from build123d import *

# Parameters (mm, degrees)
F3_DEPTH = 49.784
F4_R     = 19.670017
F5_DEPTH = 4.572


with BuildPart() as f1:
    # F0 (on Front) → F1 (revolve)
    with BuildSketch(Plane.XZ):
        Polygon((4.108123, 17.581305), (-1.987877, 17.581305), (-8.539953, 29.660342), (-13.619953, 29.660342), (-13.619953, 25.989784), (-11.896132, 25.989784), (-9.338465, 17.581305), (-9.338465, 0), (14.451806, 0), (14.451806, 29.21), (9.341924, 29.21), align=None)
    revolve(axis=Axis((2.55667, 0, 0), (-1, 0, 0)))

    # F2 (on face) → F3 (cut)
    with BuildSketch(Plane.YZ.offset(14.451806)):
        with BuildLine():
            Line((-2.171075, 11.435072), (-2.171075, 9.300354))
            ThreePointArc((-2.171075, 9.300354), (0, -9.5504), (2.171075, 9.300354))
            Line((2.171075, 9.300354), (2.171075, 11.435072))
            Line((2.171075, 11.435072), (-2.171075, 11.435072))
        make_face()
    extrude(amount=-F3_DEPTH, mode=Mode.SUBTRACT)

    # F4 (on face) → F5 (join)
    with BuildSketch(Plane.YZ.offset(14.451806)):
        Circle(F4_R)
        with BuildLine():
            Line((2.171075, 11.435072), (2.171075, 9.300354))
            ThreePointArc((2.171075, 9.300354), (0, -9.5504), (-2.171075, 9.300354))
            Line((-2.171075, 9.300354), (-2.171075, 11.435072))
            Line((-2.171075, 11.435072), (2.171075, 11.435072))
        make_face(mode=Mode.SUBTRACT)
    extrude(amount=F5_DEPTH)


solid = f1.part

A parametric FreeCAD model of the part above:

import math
import FreeCAD as App
import Part
import Sketcher
Q = App.Units.Quantity

doc = App.newDocument("Part")
body = doc.addObject("PartDesign::Body", "Body")

# Sketch on XZ plane
sketch1 = body.newObject("Sketcher::SketchObject", "Sketch")
sketch1.AttachmentSupport = (doc.getObject("XZ_Plane"), [""])
sketch1.MapMode = "FlatFace"
sketch1.addGeometry(Part.LineSegment(App.Vector(4.1, 17.6, 0), App.Vector(-2, 17.6, 0)), False)
sketch1.addGeometry(Part.LineSegment(App.Vector(-2, 17.6, 0), App.Vector(-8.5, 29.7, 0)), False)
sketch1.addGeometry(Part.LineSegment(App.Vector(-8.5, 29.7, 0), App.Vector(-13.6, 29.7, 0)), False)
sketch1.addGeometry(Part.LineSegment(App.Vector(-13.6, 29.7, 0), App.Vector(-13.6, 26, 0)), False)
sketch1.addGeometry(Part.LineSegment(App.Vector(-13.6, 26, 0), App.Vector(-11.9, 26, 0)), False)
sketch1.addGeometry(Part.LineSegment(App.Vector(-11.9, 26, 0), App.Vector(-9.3, 17.6, 0)), False)
sketch1.addGeometry(Part.LineSegment(App.Vector(-9.3, 17.6, 0), App.Vector(-9.3, 0, 0)), False)
sketch1.addGeometry(Part.LineSegment(App.Vector(-9.3, 0, 0), App.Vector(14.5, 0, 0)), False)
sketch1.addGeometry(Part.LineSegment(App.Vector(14.5, 0, 0), App.Vector(14.5, 29.2, 0)), False)
sketch1.addGeometry(Part.LineSegment(App.Vector(14.5, 29.2, 0), App.Vector(9.3, 29.2, 0)), False)
sketch1.addGeometry(Part.LineSegment(App.Vector(9.3, 29.2, 0), App.Vector(4.1, 17.6, 0)), False)
sketch1.addConstraint(Sketcher.Constraint("Coincident", 0, 2, 1, 1))
sketch1.addConstraint(Sketcher.Constraint("Coincident", 1, 2, 2, 1))
sketch1.addConstraint(Sketcher.Constraint("Coincident", 2, 2, 3, 1))
sketch1.addConstraint(Sketcher.Constraint("Coincident", 3, 2, 4, 1))
sketch1.addConstraint(Sketcher.Constraint("Coincident", 4, 2, 5, 1))
sketch1.addConstraint(Sketcher.Constraint("Coincident", 5, 2, 6, 1))
sketch1.addConstraint(Sketcher.Constraint("Coincident", 6, 2, 7, 1))
sketch1.addConstraint(Sketcher.Constraint("Coincident", 7, 2, 8, 1))
sketch1.addConstraint(Sketcher.Constraint("Coincident", 8, 2, 9, 1))
sketch1.addConstraint(Sketcher.Constraint("Coincident", 9, 2, 10, 1))
sketch1.addConstraint(Sketcher.Constraint("Coincident", 10, 2, 0, 1))
sketch1.addConstraint(Sketcher.Constraint("Horizontal", 0))
sketch1.addConstraint(Sketcher.Constraint("Horizontal", 2))
sketch1.addConstraint(Sketcher.Constraint("Vertical", 3))
sketch1.addConstraint(Sketcher.Constraint("Horizontal", 4))
sketch1.addConstraint(Sketcher.Constraint("Vertical", 6))
sketch1.addConstraint(Sketcher.Constraint("Horizontal", 7))
sketch1.addConstraint(Sketcher.Constraint("Vertical", 8))
sketch1.addConstraint(Sketcher.Constraint("Horizontal", 9))
sketch1.addConstraint(Sketcher.Constraint("PointOnObject", 6, 2, -1))
sketch1.addConstraint(Sketcher.Constraint("Horizontal", 0, 2, 5, 2))
sketch1.addConstraint(Sketcher.Constraint("DistanceX", 2, 2, 2, 1, Q("0.2 in")))
sketch1.addConstraint(Sketcher.Constraint("DistanceX", 0, 2, 0, 1, Q("0.24 in")))
sketch1.addConstraint(Sketcher.Constraint("DistanceY", 8, 1, 8, 2, Q("1.15 in")))
sketch1.addConstraint(Sketcher.Constraint("DistanceX", 4, 1, 4, 2, 1.723821))
sketch1.addConstraint(Sketcher.Constraint("DistanceX", 7, 1, 7, 2, 23.790271))
sketch1.addConstraint(Sketcher.Constraint("DistanceX", 9, 2, 9, 1, 5.109882))
sketch1.addConstraint(Sketcher.Constraint("DistanceX", 0, 2, 9, 2, 11.329801))
sketch1.addConstraint(Sketcher.Constraint("DistanceY", 3, 2, 3, 1, 3.670558))
sketch1.addConstraint(Sketcher.Constraint("DistanceY", 6, 2, 6, 1, 17.581305))
sketch1.addConstraint(Sketcher.Constraint("DistanceY", -1, 1, 1, 2, 29.660342))
sketch1.addConstraint(Sketcher.Constraint("DistanceX", 3, 2, 5, 2, 4.281488))
sketch1.addConstraint(Sketcher.Constraint("DistanceX", 0, 2, -1, 1, 1.987877))
revolution = body.newObject("PartDesign::Revolution", "Revolution")
revolution.Profile = sketch1
revolution.ReferenceAxis = (sketch1, ["H_Axis"])
revolution.Angle = 360

# Sketch on YZ plane
sketch2 = body.newObject("Sketcher::SketchObject", "Sketch001")
sketch2.AttachmentSupport = (doc.getObject("YZ_Plane"), [""])
sketch2.MapMode = "FlatFace"
sketch2.AttachmentOffset = App.Placement(App.Vector(0, 0, 14.451806), App.Rotation())
sketch2.addGeometry(Part.LineSegment(App.Vector(-2.2, 11.4, 0), App.Vector(-2.2, 9.3, 0)), False)
sketch2.addGeometry(Part.ArcOfCircle(Part.Circle(App.Vector(0, 0, 0), App.Vector(0, 0, 1), 9.6), math.radians(103), math.radians(437)), False)
sketch2.addGeometry(Part.LineSegment(App.Vector(2.2, 9.3, 0), App.Vector(2.2, 11.4, 0)), False)
sketch2.addGeometry(Part.LineSegment(App.Vector(2.2, 11.4, 0), App.Vector(-2.2, 11.4, 0)), False)
sketch2.addConstraint(Sketcher.Constraint("Coincident", 0, 2, 1, 1))
sketch2.addConstraint(Sketcher.Constraint("Coincident", 1, 2, 2, 1))
sketch2.addConstraint(Sketcher.Constraint("Coincident", 2, 2, 3, 1))
sketch2.addConstraint(Sketcher.Constraint("Coincident", 3, 2, 0, 1))
sketch2.addConstraint(Sketcher.Constraint("Vertical", 0))
sketch2.addConstraint(Sketcher.Constraint("Vertical", 2))
sketch2.addConstraint(Sketcher.Constraint("Horizontal", 3))
sketch2.addConstraint(Sketcher.Constraint("Coincident", 1, 3, -1, 1))
sketch2.addConstraint(Sketcher.Constraint("Horizontal", 0, 2, 1, 2))
sketch2.addConstraint(Sketcher.Constraint("Radius", 1, Q("0.376 in")))
sketch2.addConstraint(Sketcher.Constraint("DistanceX", 3, 2, 3, 1, 4.34215))
sketch2.addConstraint(Sketcher.Constraint("DistanceY", 0, 2, 0, 1, 2.134718))
pocket1 = body.newObject("PartDesign::Pocket", "Pocket")
pocket1.Profile = sketch2
pocket1.Length = Q("1.96 in")

# Sketch on YZ plane
sketch3 = body.newObject("Sketcher::SketchObject", "Sketch002")
sketch3.AttachmentSupport = (doc.getObject("YZ_Plane"), [""])
sketch3.MapMode = "FlatFace"
sketch3.AttachmentOffset = App.Placement(App.Vector(0, 0, 14.451806), App.Rotation())
sketch3.addGeometry(Part.Circle(App.Vector(0, 0, 0), App.Vector(0, 0, 1), 19.7), False)
sketch3.addGeometry(Part.LineSegment(App.Vector(-2.2, 11.4, 0), App.Vector(2.2, 11.4, 0)), False)
sketch3.addGeometry(Part.LineSegment(App.Vector(2.2, 11.4, 0), App.Vector(2.2, 9.3, 0)), False)
sketch3.addGeometry(Part.ArcOfCircle(Part.Circle(App.Vector(0, 0, 0), App.Vector(0, 0, 1), 9.6), math.radians(103), math.radians(437)), False)
sketch3.addGeometry(Part.LineSegment(App.Vector(-2.2, 9.3, 0), App.Vector(-2.2, 11.4, 0)), False)
sketch3.addConstraint(Sketcher.Constraint("Coincident", 1, 2, 2, 1))
sketch3.addConstraint(Sketcher.Constraint("Coincident", 2, 2, 3, 2))
sketch3.addConstraint(Sketcher.Constraint("Coincident", 3, 1, 4, 1))
sketch3.addConstraint(Sketcher.Constraint("Coincident", 4, 2, 1, 1))
sketch3.addConstraint(Sketcher.Constraint("Horizontal", 1))
sketch3.addConstraint(Sketcher.Constraint("Vertical", 2))
sketch3.addConstraint(Sketcher.Constraint("Vertical", 4))
sketch3.addConstraint(Sketcher.Constraint("Coincident", 0, 3, -1, 1))
sketch3.addConstraint(Sketcher.Constraint("Coincident", 3, 3, -1, 1))
sketch3.addConstraint(Sketcher.Constraint("Horizontal", 2, 2, 3, 1))
sketch3.addConstraint(Sketcher.Constraint("Radius", 3, Q("0.376 in")))
sketch3.addConstraint(Sketcher.Constraint("Diameter", 0, 39.340034))
sketch3.addConstraint(Sketcher.Constraint("DistanceX", 1, 1, 1, 2, 4.34215))
sketch3.addConstraint(Sketcher.Constraint("DistanceY", 2, 2, 2, 1, 2.134718))
pad1 = body.newObject("PartDesign::Pad", "Pad")
pad1.Profile = sketch3
pad1.Length = Q("0.18 in")

doc.recompute()
